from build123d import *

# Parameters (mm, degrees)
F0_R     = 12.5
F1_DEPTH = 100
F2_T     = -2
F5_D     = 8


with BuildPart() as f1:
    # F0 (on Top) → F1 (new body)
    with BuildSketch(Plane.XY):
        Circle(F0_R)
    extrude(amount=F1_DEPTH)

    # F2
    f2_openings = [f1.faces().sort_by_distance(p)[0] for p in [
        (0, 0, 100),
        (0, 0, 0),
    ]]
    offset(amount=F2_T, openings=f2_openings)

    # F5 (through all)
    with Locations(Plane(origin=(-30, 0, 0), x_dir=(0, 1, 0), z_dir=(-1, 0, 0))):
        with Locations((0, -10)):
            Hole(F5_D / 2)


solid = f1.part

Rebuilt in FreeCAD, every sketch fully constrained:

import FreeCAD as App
import Part
import Sketcher
Q = App.Units.Quantity


def faces_at(feature, points):
    """Names of the faces that lie closest to the given points."""
    faces = feature.Shape.Faces
    near = lambda p: min(range(len(faces)), key=lambda i: faces[i].distToShape(Part.Vertex(*p))[0])
    return sorted({f"Face{near(p) + 1}" for p in points})

doc = App.newDocument("Part")
params = doc.addObject("Spreadsheet::Sheet", "Params")
for row, (alias, value) in enumerate([
    ("sketch1_diameter", "25 mm"),
    ("pad1_length", "100 mm"),
    ("thickness_wall", "2 mm"),
    ("sketch2_diameter", "8 mm"),
    ("hole_diameter", "8 mm"),
], start=1):
    params.set(f"A{row}", alias)
    params.set(f"B{row}", "=" + value)
    params.setAlias(f"B{row}", alias)

body = doc.addObject("PartDesign::Body", "Body")

# Sketch on XY plane
sketch1 = body.newObject("Sketcher::SketchObject", "Sketch")
sketch1.AttachmentSupport = (doc.getObject("XY_Plane"), [""])
sketch1.MapMode = "FlatFace"
sketch1.addGeometry(Part.Circle(App.Vector(0, 0, 0), App.Vector(0, 0, 1), 12), False)
sketch1.addConstraint([
    Sketcher.Constraint("Coincident", 0, 3, -1, 1),
    Sketcher.Constraint("Diameter", 0, Q("25 mm")),
])
sketch1.setExpression("Constraints[1]", "Params.sketch1_diameter")
pad1 = body.newObject("PartDesign::Pad", "Pad")
pad1.Profile = sketch1
pad1.setExpression("Length", "Params.pad1_length")
doc.recompute()

thickness = body.newObject("PartDesign::Thickness", "Thickness")
thickness.Base = (pad1, faces_at(pad1, [(0, 0, 100), (0, 0, 0)]))
thickness.setExpression("Value", "Params.thickness_wall")
thickness.Reversed = True
thickness.Join = "Arc"

# Sketch on YZ plane
sketch2 = body.newObject("Sketcher::SketchObject", "Sketch001")
sketch2.AttachmentSupport = (doc.getObject("YZ_Plane"), [""])
sketch2.MapMode = "FlatFace"
sketch2.AttachmentOffset = App.Placement(App.Vector(0, 0, -30), App.Rotation())
sketch2.addGeometry(Part.Circle(App.Vector(0, 10, 0), App.Vector(0, 0, 1), 4), False)
sketch2.addConstraint([
    Sketcher.Constraint("PointOnObject", 0, 3, -2),
    Sketcher.Constraint("Diameter", 0, Q("8 mm")),
    Sketcher.Constraint("DistanceY", -1, 1, 0, 3, Q("10 mm")),
])
sketch2.setExpression("Constraints[1]", "Params.sketch2_diameter")
doc.recompute()
hole = body.newObject("PartDesign::Hole", "Hole")
hole.Profile = sketch2
hole.ThreadType = "None"
hole.setExpression("Diameter", "Params.hole_diameter")
hole.DepthType = "ThroughAll"
hole.Reversed = True

doc.recompute()
